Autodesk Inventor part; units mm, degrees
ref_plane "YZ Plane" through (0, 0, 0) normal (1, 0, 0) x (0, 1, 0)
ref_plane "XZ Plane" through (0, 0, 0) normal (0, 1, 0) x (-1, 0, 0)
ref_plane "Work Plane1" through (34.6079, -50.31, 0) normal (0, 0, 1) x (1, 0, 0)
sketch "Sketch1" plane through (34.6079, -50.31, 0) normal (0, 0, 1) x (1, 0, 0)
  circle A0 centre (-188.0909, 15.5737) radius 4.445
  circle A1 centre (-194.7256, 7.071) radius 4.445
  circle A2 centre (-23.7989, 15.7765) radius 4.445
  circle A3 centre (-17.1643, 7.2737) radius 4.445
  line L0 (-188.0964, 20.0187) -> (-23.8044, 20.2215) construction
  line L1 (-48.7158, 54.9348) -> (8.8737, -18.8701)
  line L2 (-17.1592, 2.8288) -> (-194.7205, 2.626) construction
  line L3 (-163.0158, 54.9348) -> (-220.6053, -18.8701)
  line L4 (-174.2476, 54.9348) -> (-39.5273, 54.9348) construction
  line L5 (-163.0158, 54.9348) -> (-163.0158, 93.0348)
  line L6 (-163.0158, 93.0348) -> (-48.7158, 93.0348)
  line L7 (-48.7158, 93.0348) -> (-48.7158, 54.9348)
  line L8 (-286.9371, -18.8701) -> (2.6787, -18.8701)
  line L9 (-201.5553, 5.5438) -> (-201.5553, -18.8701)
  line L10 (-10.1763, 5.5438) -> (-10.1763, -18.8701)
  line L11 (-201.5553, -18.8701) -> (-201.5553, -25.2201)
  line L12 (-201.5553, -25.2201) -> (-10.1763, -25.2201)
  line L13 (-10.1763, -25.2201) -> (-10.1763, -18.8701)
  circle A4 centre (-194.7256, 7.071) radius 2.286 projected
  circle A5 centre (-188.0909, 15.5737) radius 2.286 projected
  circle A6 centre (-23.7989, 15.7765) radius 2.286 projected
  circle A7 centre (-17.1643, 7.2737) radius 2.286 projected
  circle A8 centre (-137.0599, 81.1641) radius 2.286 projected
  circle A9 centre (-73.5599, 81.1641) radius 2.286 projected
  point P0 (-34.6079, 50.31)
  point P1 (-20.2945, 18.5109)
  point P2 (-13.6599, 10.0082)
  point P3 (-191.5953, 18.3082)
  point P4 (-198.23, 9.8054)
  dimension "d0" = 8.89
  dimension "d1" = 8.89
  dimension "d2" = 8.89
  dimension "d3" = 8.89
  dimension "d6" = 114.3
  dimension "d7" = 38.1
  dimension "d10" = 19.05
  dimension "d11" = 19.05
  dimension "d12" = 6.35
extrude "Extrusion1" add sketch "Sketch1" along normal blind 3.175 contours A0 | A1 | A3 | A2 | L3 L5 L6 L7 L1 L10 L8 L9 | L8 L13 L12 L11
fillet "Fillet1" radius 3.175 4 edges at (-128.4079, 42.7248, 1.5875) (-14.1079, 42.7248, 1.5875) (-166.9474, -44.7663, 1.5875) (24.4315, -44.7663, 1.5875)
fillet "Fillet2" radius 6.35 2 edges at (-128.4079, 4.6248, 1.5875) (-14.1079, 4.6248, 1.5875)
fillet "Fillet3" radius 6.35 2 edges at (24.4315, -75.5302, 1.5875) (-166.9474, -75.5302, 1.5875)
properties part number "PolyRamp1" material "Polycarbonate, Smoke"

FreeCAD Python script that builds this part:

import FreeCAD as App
import Part
import Sketcher

V = App.Vector
Q = App.Units.Quantity


def edges_at(feature, points):
    """Names of the edges that pass closest to the given points."""
    edges = feature.Shape.Edges
    near = lambda p: min(range(len(edges)), key=lambda i: edges[i].distToShape(Part.Vertex(*p))[0])
    return sorted({f"Edge{near(p) + 1}" for p in points})


def add_polygon(sketch, points):
    """Adds a closed chain of lines whose ends are joined by coincident constraints."""
    first, n = sketch.GeometryCount, len(points)
    for a, b in zip(points, points[1:] + points[:1]):
        sketch.addGeometry(Part.LineSegment(App.Vector(*a, 0), App.Vector(*b, 0)), False)
    for i in range(n):
        sketch.addConstraint(Sketcher.Constraint("Coincident", first + i, 2, first + (i + 1) % n, 1))

doc = App.newDocument("Part")
body = doc.addObject("PartDesign::Body", "Body")

sketch1 = body.newObject("Sketcher::SketchObject", "Sketch")
sketch1.AttachmentSupport = (doc.getObject("XY_Plane"), [""])
sketch1.MapMode = "FlatFace"
add_polygon(sketch1, [(-128.4079, 4.6248), (-166.9474, -44.7662), (-166.9474, -75.5301), (24.4316, -75.5301), (24.4316, -44.7662), (-14.1079, 4.6248), (-14.1079, 42.7248), (-128.4079, 42.7248)])
sketch1.addGeometry(Part.Circle(V(-153.483, -34.7363, 0), V(0, 0, 1), 2.286), False)
sketch1.addGeometry(Part.Circle(V(-102.452, 30.8541, 0), V(0, 0, 1), 2.286), False)
sketch1.addGeometry(Part.Circle(V(-38.952, 30.8541, 0), V(0, 0, 1), 2.286), False)
sketch1.addGeometry(Part.Circle(V(-160.1177, -43.239, 0), V(0, 0, 1), 2.286), False)
sketch1.addGeometry(Part.Circle(V(17.4436, -43.0363, 0), V(0, 0, 1), 2.286), False)
sketch1.addGeometry(Part.Circle(V(10.809, -34.5335, 0), V(0, 0, 1), 2.286), False)
sketch1.addConstraint([
    Sketcher.Constraint("Vertical", 1),
    Sketcher.Constraint("Horizontal", 2),
    Sketcher.Constraint("Vertical", 3),
    Sketcher.Constraint("Vertical", 5),
    Sketcher.Constraint("Horizontal", 6),
    Sketcher.Constraint("Vertical", 7),
    Sketcher.Constraint("Equal", 8, 9),
    Sketcher.Constraint("Equal", 9, 10),
    Sketcher.Constraint("Equal", 10, 11),
    Sketcher.Constraint("Equal", 11, 12),
    Sketcher.Constraint("Equal", 12, 13),
    Sketcher.Constraint("Horizontal", 9, 3, 10, 3),
    Sketcher.Constraint("Horizontal", 0, 2, 3, 2),
    Sketcher.Constraint("Horizontal", 4, 2, 7, 2),
    Sketcher.Constraint("Equal", 0, 4),
    Sketcher.Constraint("DistanceX", 6, 2, 6, 1, Q("4.5 in")),
    Sketcher.Constraint("DistanceY", 5, 1, 5, 2, Q("1.5 in")),
    Sketcher.Constraint("Diameter", 8, Q("0.18 in")),
    Sketcher.Constraint("DistanceX", 9, 3, 10, 3, Q("2.5 in")),
    Sketcher.Constraint("DistanceX", 2, 1, 2, 2, Q("7.5346 in")),
    Sketcher.Constraint("DistanceY", 1, 2, 1, 1, 30.764),
    Sketcher.Constraint("DistanceX", 8, 3, 9, 3, Q("2.0091 in")),
    Sketcher.Constraint("DistanceY", 8, 3, 9, 3, Q("2.5823 in")),
    Sketcher.Constraint("DistanceX", 11, 3, 8, 3, Q("0.2612 in")),
    Sketcher.Constraint("DistanceX", 10, 3, 12, 3, Q("2.2203 in")),
    Sketcher.Constraint("DistanceX", 13, 3, 12, 3, Q("0.2612 in")),
    Sketcher.Constraint("DistanceX", 0, 2, 8, 3, Q("0.5301 in")),
    Sketcher.Constraint("DistanceY", 1, 2, 11, 3, Q("1.2713 in")),
    Sketcher.Constraint("DistanceY", 3, 2, 12, 3, Q("0.0681 in")),
    Sketcher.Constraint("DistanceY", 2, 2, 4, 2, Q("3.1557 in")),
    Sketcher.Constraint("DistanceX", 8, 3, -1, 1, 153.483),
    Sketcher.Constraint("DistanceY", 8, 3, -1, 1, 34.7363),
    Sketcher.Constraint("DistanceY", 11, 3, -1, 1, 43.239),
    Sketcher.Constraint("DistanceY", 13, 3, -1, 1, 34.5335),
])
pad1 = body.newObject("PartDesign::Pad", "Pad")
pad1.Profile = sketch1
pad1.Length = Q("0.125 in")
doc.recompute()

fillet = body.newObject("PartDesign::Fillet", "Fillet")
fillet.Base = (pad1, edges_at(pad1, [
    (-128.408, 42.725, 1.587),
    (-14.108, 42.725, 1.587),
    (-166.947, -44.766, 1.587),
    (24.431, -44.766, 1.587),
]))
fillet.Radius = Q("0.125 in")
doc.recompute()

fillet2 = body.newObject("PartDesign::Fillet", "Fillet001")
fillet2.Base = (fillet, edges_at(fillet, [(-128.408, 4.625, 1.587), (-14.108, 4.625, 1.587)]))
fillet2.Radius = Q("0.25 in")
doc.recompute()

fillet3 = body.newObject("PartDesign::Fillet", "Fillet002")
fillet3.Base = (fillet2, edges_at(fillet2, [(24.431, -75.53, 1.587), (-166.947, -75.53, 1.587)]))
fillet3.Radius = Q("0.25 in")

doc.recompute()
